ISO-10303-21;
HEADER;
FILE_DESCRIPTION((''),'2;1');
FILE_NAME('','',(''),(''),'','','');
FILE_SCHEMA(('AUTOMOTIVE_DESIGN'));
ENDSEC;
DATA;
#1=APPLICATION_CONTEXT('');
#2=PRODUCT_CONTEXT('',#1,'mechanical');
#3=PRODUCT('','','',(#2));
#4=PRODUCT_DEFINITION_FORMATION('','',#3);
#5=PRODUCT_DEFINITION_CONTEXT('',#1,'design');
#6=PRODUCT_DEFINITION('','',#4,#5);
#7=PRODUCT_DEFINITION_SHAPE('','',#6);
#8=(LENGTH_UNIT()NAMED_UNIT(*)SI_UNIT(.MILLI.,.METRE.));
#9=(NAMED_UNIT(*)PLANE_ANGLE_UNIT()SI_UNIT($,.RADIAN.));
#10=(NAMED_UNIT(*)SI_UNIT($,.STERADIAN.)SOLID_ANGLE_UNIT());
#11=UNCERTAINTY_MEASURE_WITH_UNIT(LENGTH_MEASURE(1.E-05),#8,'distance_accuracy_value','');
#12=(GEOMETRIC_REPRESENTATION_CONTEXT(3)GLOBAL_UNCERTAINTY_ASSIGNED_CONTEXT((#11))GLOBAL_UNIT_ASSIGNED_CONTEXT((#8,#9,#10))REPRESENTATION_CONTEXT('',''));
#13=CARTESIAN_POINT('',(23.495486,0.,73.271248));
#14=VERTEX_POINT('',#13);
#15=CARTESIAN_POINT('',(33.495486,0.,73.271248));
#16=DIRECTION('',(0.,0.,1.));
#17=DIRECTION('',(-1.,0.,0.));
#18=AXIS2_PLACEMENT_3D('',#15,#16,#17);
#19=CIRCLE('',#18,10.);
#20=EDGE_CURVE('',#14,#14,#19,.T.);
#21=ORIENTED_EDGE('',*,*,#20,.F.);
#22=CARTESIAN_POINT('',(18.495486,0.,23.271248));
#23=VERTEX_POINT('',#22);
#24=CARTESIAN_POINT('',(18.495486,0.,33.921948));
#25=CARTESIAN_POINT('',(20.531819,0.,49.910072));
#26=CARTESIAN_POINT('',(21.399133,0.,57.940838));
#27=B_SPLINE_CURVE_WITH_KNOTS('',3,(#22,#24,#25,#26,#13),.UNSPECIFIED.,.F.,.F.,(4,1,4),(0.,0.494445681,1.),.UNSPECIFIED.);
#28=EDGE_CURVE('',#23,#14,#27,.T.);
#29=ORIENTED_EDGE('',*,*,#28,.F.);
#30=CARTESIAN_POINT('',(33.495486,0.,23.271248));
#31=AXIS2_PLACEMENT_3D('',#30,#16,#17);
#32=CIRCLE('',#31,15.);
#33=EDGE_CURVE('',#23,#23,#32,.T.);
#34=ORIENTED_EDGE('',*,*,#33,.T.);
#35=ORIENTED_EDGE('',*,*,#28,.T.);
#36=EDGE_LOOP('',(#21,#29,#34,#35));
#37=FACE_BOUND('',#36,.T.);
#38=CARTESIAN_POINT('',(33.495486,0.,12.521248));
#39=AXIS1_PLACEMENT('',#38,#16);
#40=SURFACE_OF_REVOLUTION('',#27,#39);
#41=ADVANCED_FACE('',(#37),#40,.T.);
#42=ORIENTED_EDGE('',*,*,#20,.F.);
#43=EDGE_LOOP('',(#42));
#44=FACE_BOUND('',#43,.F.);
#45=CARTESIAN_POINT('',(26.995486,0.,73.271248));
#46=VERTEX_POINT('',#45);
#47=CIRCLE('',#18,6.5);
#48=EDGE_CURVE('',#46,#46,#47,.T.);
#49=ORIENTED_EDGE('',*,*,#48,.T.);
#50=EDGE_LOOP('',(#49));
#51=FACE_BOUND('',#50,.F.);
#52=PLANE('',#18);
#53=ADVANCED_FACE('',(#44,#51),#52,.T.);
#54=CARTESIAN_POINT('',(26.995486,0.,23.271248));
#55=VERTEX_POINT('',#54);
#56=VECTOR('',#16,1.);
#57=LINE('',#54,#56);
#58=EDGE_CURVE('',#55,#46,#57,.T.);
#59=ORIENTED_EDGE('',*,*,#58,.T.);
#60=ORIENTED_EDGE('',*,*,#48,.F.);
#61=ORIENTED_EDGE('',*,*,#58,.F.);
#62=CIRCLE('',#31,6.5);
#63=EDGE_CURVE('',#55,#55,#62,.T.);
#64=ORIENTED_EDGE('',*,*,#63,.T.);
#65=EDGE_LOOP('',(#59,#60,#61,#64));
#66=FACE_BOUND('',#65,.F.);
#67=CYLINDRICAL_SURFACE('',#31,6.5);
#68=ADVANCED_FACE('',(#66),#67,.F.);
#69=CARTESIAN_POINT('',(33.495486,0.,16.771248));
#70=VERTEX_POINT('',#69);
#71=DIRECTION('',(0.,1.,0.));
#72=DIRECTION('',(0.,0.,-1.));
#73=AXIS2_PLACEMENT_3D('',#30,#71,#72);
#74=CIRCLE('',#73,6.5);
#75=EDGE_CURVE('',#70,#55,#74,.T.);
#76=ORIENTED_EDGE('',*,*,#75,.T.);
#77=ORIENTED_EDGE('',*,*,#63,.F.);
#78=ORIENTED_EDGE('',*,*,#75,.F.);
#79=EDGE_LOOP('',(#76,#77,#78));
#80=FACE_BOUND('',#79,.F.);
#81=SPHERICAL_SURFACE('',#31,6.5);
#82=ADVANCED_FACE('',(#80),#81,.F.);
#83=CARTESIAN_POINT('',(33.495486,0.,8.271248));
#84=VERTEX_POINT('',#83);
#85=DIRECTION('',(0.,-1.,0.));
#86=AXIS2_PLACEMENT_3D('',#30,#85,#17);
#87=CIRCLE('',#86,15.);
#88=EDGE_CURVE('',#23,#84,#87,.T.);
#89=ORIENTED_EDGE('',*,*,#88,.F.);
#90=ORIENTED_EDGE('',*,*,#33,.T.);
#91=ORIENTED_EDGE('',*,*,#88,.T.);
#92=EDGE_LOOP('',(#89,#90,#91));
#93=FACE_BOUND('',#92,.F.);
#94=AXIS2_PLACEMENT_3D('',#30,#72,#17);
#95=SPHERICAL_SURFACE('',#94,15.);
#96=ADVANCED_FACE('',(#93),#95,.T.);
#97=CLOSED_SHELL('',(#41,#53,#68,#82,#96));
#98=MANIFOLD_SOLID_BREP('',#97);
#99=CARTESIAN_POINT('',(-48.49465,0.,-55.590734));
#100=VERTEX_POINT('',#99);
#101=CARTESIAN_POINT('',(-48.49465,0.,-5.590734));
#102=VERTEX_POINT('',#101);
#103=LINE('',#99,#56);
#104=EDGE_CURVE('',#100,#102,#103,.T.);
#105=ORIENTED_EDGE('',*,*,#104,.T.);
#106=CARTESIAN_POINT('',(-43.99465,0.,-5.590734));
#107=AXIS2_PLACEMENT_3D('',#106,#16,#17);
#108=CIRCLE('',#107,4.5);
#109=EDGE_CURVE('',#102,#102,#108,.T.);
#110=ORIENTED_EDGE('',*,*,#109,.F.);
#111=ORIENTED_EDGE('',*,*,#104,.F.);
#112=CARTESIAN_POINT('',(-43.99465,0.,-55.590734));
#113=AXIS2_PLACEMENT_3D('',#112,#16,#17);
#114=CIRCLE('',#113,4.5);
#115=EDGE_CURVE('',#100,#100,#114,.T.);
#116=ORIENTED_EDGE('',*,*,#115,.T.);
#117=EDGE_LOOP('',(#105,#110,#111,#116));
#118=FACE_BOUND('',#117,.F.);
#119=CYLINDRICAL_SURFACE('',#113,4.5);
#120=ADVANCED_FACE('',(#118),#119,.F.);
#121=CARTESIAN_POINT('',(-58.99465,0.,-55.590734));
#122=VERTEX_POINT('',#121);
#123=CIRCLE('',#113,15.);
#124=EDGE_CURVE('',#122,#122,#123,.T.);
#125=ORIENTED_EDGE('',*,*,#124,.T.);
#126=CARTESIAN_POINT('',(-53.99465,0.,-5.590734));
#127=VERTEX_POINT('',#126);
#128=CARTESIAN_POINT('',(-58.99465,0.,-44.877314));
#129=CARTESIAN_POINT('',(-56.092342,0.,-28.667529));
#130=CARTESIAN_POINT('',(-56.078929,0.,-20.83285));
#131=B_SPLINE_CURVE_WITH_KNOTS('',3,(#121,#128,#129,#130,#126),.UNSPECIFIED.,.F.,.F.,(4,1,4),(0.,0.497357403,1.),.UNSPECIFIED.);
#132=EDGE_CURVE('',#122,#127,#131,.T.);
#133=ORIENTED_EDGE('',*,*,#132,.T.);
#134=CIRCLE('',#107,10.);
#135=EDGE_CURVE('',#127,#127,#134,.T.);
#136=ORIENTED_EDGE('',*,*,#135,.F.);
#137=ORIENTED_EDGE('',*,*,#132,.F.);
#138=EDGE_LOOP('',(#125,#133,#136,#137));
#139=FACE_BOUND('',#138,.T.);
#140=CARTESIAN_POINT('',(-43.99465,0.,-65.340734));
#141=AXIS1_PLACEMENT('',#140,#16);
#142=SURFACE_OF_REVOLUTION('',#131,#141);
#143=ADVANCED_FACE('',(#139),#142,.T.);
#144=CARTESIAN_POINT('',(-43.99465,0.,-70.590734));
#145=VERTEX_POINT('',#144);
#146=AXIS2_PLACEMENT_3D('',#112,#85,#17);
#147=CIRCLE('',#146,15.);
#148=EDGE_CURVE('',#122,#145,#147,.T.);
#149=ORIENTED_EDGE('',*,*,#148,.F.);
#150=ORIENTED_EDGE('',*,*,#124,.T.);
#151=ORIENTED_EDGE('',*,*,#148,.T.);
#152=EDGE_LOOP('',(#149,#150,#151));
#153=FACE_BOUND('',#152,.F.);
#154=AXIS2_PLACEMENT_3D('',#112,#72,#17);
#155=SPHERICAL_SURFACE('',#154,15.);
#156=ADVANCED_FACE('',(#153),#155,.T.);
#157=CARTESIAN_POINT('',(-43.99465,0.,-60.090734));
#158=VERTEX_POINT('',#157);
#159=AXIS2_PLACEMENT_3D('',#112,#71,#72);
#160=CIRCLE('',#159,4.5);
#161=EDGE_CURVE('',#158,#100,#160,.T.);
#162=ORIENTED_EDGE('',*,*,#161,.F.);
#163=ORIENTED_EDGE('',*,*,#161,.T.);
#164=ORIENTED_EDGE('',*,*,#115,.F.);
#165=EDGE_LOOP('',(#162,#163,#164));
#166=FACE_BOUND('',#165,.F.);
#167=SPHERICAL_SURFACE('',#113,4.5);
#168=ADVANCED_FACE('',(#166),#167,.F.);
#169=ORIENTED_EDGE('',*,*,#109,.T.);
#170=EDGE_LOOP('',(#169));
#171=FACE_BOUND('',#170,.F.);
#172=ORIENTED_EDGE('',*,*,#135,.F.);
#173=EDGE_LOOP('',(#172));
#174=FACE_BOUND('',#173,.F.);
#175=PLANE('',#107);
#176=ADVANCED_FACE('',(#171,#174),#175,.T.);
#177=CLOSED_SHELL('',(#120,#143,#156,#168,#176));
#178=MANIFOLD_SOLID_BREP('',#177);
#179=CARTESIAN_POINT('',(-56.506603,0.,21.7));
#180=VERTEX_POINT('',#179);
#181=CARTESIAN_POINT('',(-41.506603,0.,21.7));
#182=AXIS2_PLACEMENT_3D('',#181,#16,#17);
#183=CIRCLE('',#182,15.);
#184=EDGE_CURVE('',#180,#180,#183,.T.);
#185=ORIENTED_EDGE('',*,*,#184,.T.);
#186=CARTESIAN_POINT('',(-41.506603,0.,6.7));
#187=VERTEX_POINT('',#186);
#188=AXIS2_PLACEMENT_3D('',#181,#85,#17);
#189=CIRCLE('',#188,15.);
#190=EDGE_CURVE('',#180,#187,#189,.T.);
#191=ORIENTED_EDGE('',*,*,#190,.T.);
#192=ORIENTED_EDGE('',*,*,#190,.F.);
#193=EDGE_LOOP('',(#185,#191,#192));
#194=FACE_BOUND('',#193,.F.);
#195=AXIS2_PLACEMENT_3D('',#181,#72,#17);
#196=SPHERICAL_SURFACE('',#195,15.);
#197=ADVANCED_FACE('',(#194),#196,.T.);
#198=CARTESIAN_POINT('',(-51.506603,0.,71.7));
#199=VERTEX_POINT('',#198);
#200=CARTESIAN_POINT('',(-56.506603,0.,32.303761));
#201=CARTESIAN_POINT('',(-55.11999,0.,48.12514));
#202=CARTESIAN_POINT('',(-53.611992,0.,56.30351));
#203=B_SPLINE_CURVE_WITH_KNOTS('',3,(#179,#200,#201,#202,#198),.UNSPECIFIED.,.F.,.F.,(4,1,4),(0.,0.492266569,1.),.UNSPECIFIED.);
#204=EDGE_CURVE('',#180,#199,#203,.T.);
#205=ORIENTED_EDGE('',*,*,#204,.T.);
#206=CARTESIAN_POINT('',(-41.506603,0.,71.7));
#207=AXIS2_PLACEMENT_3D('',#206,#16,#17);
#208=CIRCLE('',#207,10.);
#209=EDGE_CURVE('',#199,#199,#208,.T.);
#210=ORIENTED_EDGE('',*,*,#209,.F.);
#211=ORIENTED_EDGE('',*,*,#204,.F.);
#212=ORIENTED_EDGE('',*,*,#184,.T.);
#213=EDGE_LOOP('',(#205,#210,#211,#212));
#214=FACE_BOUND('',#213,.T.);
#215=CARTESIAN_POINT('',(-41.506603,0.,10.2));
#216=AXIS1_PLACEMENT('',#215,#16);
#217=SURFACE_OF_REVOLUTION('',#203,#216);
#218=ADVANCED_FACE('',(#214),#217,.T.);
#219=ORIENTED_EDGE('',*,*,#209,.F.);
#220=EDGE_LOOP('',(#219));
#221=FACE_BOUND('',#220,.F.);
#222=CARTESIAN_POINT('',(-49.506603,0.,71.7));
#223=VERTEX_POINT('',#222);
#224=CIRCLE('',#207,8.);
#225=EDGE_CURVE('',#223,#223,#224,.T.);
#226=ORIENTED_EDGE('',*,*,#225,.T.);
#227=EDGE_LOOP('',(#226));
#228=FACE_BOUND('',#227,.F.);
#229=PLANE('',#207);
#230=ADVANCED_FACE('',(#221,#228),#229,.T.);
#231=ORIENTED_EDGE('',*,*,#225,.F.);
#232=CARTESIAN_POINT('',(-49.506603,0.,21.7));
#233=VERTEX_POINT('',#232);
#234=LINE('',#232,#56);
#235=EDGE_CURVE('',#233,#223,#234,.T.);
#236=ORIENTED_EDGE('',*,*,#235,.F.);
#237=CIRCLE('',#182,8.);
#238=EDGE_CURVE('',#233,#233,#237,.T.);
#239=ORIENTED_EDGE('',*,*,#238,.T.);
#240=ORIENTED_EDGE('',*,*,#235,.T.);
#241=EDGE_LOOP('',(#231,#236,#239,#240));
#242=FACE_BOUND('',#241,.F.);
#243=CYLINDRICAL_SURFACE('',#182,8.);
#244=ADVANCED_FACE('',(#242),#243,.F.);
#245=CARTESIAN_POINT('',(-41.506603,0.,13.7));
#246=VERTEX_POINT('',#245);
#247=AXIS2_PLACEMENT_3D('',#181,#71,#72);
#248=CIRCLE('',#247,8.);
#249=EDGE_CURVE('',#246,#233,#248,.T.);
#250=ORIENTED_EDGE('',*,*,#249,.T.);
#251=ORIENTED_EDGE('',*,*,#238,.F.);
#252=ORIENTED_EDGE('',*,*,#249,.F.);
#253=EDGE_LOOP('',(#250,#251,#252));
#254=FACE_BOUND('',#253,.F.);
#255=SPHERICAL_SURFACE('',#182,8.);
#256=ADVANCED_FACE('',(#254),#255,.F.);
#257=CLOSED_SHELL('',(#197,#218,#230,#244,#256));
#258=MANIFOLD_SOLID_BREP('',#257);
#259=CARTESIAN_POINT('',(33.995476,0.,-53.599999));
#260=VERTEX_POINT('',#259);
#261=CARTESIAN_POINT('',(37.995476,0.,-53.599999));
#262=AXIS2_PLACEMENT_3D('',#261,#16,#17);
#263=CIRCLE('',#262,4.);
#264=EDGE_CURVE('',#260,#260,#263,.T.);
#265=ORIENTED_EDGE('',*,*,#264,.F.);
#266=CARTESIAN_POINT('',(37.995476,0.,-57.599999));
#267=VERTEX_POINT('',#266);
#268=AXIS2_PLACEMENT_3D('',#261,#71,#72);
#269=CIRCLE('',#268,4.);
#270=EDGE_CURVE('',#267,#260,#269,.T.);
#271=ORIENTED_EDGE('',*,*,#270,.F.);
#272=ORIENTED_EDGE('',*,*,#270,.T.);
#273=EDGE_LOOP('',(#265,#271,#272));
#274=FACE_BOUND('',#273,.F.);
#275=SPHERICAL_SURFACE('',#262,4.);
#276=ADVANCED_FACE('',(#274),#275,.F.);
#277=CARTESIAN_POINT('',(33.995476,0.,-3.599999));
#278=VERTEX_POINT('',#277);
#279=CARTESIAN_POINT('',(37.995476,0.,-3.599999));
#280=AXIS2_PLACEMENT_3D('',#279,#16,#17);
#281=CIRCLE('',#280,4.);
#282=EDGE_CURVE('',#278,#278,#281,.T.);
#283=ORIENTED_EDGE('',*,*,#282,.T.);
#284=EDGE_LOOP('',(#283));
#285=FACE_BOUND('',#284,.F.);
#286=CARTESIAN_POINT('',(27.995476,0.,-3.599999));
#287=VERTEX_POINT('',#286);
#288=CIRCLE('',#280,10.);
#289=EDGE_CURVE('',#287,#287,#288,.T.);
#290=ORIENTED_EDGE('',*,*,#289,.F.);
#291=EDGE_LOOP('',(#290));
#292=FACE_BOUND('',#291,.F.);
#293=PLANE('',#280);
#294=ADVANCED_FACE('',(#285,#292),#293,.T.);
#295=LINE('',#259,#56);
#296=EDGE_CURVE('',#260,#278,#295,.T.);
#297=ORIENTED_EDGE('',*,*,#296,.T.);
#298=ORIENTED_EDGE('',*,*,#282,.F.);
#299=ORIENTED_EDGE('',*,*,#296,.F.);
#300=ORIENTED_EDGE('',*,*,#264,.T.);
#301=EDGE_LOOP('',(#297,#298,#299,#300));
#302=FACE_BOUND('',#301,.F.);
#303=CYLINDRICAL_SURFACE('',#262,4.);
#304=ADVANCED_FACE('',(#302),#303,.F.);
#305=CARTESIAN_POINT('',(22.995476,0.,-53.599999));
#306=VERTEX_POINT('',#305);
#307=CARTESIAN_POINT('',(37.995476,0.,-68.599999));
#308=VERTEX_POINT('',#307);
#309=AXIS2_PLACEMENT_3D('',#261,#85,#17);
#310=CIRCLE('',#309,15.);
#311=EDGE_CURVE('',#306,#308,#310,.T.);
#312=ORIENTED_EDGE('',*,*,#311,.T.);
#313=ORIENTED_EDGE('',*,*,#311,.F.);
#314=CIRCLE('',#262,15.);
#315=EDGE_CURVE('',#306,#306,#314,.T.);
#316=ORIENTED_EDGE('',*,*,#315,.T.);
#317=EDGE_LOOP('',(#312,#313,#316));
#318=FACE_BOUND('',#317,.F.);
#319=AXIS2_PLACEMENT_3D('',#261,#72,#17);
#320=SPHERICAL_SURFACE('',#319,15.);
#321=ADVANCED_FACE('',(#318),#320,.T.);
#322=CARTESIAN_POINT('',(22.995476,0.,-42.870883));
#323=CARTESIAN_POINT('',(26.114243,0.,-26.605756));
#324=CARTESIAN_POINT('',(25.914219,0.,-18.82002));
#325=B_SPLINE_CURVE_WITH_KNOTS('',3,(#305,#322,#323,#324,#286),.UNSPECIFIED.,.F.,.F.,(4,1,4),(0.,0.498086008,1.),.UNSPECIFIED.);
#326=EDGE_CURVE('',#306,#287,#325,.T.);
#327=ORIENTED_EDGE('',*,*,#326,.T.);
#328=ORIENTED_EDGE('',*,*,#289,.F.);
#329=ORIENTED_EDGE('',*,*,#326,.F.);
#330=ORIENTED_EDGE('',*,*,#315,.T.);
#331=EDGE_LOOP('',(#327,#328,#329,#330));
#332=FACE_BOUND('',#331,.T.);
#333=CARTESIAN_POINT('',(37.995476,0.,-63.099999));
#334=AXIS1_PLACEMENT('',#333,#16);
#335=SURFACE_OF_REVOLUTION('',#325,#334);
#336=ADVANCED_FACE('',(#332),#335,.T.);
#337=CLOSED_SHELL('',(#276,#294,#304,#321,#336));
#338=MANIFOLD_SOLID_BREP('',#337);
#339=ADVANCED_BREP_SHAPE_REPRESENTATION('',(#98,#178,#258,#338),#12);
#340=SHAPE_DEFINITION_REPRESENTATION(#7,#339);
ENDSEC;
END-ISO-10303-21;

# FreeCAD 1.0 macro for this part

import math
import FreeCAD as App
import Part
import Sketcher
from FreeCAD import Vector

doc = App.newDocument("Part")
body = doc.addObject("PartDesign::Body", "Body")

sketch1 = body.newObject("Sketcher::SketchObject", "Sketch")
sketch1.AttachmentSupport = (doc.getObject("XZ_Plane"), [""])
sketch1.MapMode = "FlatFace"
sketch1.addGeometry([
    Part.ArcOfCircle(Part.Circle(Vector(-41.506603, 21.7, 0), Vector(0, 0, 1), 8), math.radians(180), math.radians(270)),
    Part.LineSegment(Vector(-49.506603, 21.7, 0), Vector(-49.506603, 71.7, 0)),
    Part.LineSegment(Vector(-49.506603, 71.7, 0), Vector(-51.506603, 71.7, 0)),
    Part.BSplineCurve([Vector(-56.506603, 21.7, 0), Vector(-56.506603, 32.303761, 0), Vector(-55.11999, 48.12514, 0), Vector(-53.611992, 56.30351, 0), Vector(-51.506603, 71.7, 0)], [4, 1, 4], [0, 0.492266569, 1], False, 3, [1, 1, 1, 1, 1], False),
    Part.ArcOfCircle(Part.Circle(Vector(-41.506603, 21.7, 0), Vector(0, 0, 1), 15), math.radians(180), math.radians(270)),
    Part.LineSegment(Vector(-41.506603, 6.7, 0), Vector(-41.506603, 13.7, 0)),
], False)
sketch1.addGeometry(Part.LineSegment(Vector(-41.506603, 6.7, 0), Vector(-41.506603, 71.7, 0)), True)
sketch1.addConstraint([
    Sketcher.Constraint("Block", 3),
    Sketcher.Constraint("Tangent", 0, 1, 1, 1),
    Sketcher.Constraint("Coincident", 1, 2, 2, 1),
    Sketcher.Constraint("Coincident", 2, 2, 3, 2),
    Sketcher.Constraint("Coincident", 3, 1, 4, 1),
    Sketcher.Constraint("Coincident", 4, 2, 5, 1),
    Sketcher.Constraint("Coincident", 5, 2, 0, 2),
    Sketcher.Constraint("Vertical", 1),
    Sketcher.Constraint("Horizontal", 2),
    Sketcher.Constraint("Vertical", 5),
    Sketcher.Constraint("Vertical", 6),
    Sketcher.Constraint("Coincident", 4, 3, 0, 3),
    Sketcher.Constraint("Coincident", 6, 1, 4, 2),
    Sketcher.Constraint("Horizontal", 2, 2, 6, 2),
    Sketcher.Constraint("Vertical", 0, 3, 4, 2),
    Sketcher.Constraint("Radius", 0, 8.0),
    Sketcher.Constraint("Radius", 4, 15.0),
    Sketcher.Constraint("DistanceY", 1, 1, 1, 2, 50.0),
])
revolution = body.newObject("PartDesign::Revolution", "Revolution")
revolution.Profile = sketch1
revolution.ReferenceAxis = (sketch1, ["Axis0"])
revolution.Angle = 360
body2 = doc.addObject("PartDesign::Body", "Body001")

sketch2 = body2.newObject("Sketcher::SketchObject", "Sketch001")
sketch2.AttachmentSupport = (doc.getObject("XZ_Plane001"), [""])
sketch2.MapMode = "FlatFace"
sketch2.addGeometry([
    Part.ArcOfCircle(Part.Circle(Vector(33.495486, 23.271248, 0), Vector(0, 0, 1), 6.5), math.radians(180), math.radians(270)),
    Part.LineSegment(Vector(26.995486, 23.271248, 0), Vector(26.995486, 73.271248, 0)),
    Part.LineSegment(Vector(26.995486, 73.271248, 0), Vector(23.495486, 73.271248, 0)),
    Part.BSplineCurve([Vector(18.495486, 23.271248, 0), Vector(18.495486, 33.921948, 0), Vector(20.531819, 49.910072, 0), Vector(21.399133, 57.940838, 0), Vector(23.495486, 73.271248, 0)], [4, 1, 4], [0, 0.494445681, 1], False, 3, [1, 1, 1, 1, 1], False),
    Part.ArcOfCircle(Part.Circle(Vector(33.495486, 23.271248, 0), Vector(0, 0, 1), 15), math.radians(180), math.radians(270)),
    Part.LineSegment(Vector(33.495486, 8.271248, 0), Vector(33.495486, 16.771248, 0)),
], False)
sketch2.addGeometry(Part.LineSegment(Vector(33.495486, 8.271248, 0), Vector(33.495486, 73.271248, 0)), True)
sketch2.addConstraint([
    Sketcher.Constraint("Block", 3),
    Sketcher.Constraint("Tangent", 0, 1, 1, 1),
    Sketcher.Constraint("Coincident", 1, 2, 2, 1),
    Sketcher.Constraint("Coincident", 2, 2, 3, 2),
    Sketcher.Constraint("Coincident", 3, 1, 4, 1),
    Sketcher.Constraint("Coincident", 4, 2, 5, 1),
    Sketcher.Constraint("Coincident", 5, 2, 0, 2),
    Sketcher.Constraint("Vertical", 1),
    Sketcher.Constraint("Horizontal", 2),
    Sketcher.Constraint("Vertical", 5),
    Sketcher.Constraint("Vertical", 6),
    Sketcher.Constraint("Coincident", 4, 3, 0, 3),
    Sketcher.Constraint("Coincident", 6, 1, 4, 2),
    Sketcher.Constraint("Horizontal", 2, 2, 6, 2),
    Sketcher.Constraint("Vertical", 0, 3, 4, 2),
    Sketcher.Constraint("Radius", 4, 15.0),
    Sketcher.Constraint("Radius", 0, 6.5),
    Sketcher.Constraint("DistanceY", 1, 1, 1, 2, 50.0),
])
revolution2 = body2.newObject("PartDesign::Revolution", "Revolution001")
revolution2.Profile = sketch2
revolution2.ReferenceAxis = (sketch2, ["Axis0"])
revolution2.Angle = 360
body3 = doc.addObject("PartDesign::Body", "Body002")

sketch3 = body3.newObject("Sketcher::SketchObject", "Sketch002")
sketch3.AttachmentSupport = (doc.getObject("XZ_Plane002"), [""])
sketch3.MapMode = "FlatFace"
sketch3.addGeometry([
    Part.ArcOfCircle(Part.Circle(Vector(-43.99465, -55.590734, 0), Vector(0, 0, 1), 4.5), math.radians(180), math.radians(270)),
    Part.LineSegment(Vector(-48.49465, -55.590734, 0), Vector(-48.49465, -5.590734, 0)),
    Part.LineSegment(Vector(-48.49465, -5.590734, 0), Vector(-53.99465, -5.590734, 0)),
    Part.BSplineCurve([Vector(-58.99465, -55.590734, 0), Vector(-58.99465, -44.877314, 0), Vector(-56.092342, -28.667529, 0), Vector(-56.078929, -20.83285, 0), Vector(-53.99465, -5.590734, 0)], [4, 1, 4], [0, 0.497357403, 1], False, 3, [1, 1, 1, 1, 1], False),
    Part.ArcOfCircle(Part.Circle(Vector(-43.99465, -55.590734, 0), Vector(0, 0, 1), 15), math.radians(180), math.radians(270)),
    Part.LineSegment(Vector(-43.99465, -70.590734, 0), Vector(-43.99465, -60.090734, 0)),
], False)
sketch3.addGeometry(Part.LineSegment(Vector(-43.99465, -70.590734, 0), Vector(-43.99465, -5.590734, 0)), True)
sketch3.addConstraint([
    Sketcher.Constraint("Block", 3),
    Sketcher.Constraint("Tangent", 0, 1, 1, 1),
    Sketcher.Constraint("Coincident", 1, 2, 2, 1),
    Sketcher.Constraint("Coincident", 2, 2, 3, 2),
    Sketcher.Constraint("Coincident", 3, 1, 4, 1),
    Sketcher.Constraint("Coincident", 4, 2, 5, 1),
    Sketcher.Constraint("Coincident", 5, 2, 0, 2),
    Sketcher.Constraint("Vertical", 1),
    Sketcher.Constraint("Horizontal", 2),
    Sketcher.Constraint("Vertical", 5),
    Sketcher.Constraint("Vertical", 6),
    Sketcher.Constraint("Coincident", 4, 3, 0, 3),
    Sketcher.Constraint("Coincident", 6, 1, 4, 2),
    Sketcher.Constraint("Horizontal", 2, 2, 6, 2),
    Sketcher.Constraint("Vertical", 0, 3, 4, 2),
    Sketcher.Constraint("Radius", 4, 15.0),
    Sketcher.Constraint("Radius", 0, 4.5),
    Sketcher.Constraint("DistanceY", 1, 1, 1, 2, 50.0),
])
revolution3 = body3.newObject("PartDesign::Revolution", "Revolution002")
revolution3.Profile = sketch3
revolution3.ReferenceAxis = (sketch3, ["Axis0"])
revolution3.Angle = 360
body4 = doc.addObject("PartDesign::Body", "Body003")

sketch4 = body4.newObject("Sketcher::SketchObject", "Sketch003")
sketch4.AttachmentSupport = (doc.getObject("XZ_Plane003"), [""])
sketch4.MapMode = "FlatFace"
sketch4.addGeometry([
    Part.ArcOfCircle(Part.Circle(Vector(37.995476, -53.599999, 0), Vector(0, 0, 1), 4), math.radians(180), math.radians(270)),
    Part.LineSegment(Vector(33.995476, -53.599999, 0), Vector(33.995476, -3.599999, 0)),
    Part.LineSegment(Vector(33.995476, -3.599999, 0), Vector(27.995476, -3.599999, 0)),
    Part.BSplineCurve([Vector(22.995476, -53.599999, 0), Vector(22.995476, -42.870883, 0), Vector(26.114243, -26.605756, 0), Vector(25.914219, -18.82002, 0), Vector(27.995476, -3.599999, 0)], [4, 1, 4], [0, 0.498086008, 1], False, 3, [1, 1, 1, 1, 1], False),
    Part.ArcOfCircle(Part.Circle(Vector(37.995476, -53.599999, 0), Vector(0, 0, 1), 15), math.radians(180), math.radians(270)),
    Part.LineSegment(Vector(37.995476, -68.599999, 0), Vector(37.995476, -57.599999, 0)),
], False)
sketch4.addGeometry(Part.LineSegment(Vector(37.995476, -68.599999, 0), Vector(37.995476, -3.599999, 0)), True)
sketch4.addConstraint([
    Sketcher.Constraint("Block", 3),
    Sketcher.Constraint("Tangent", 0, 1, 1, 1),
    Sketcher.Constraint("Coincident", 1, 2, 2, 1),
    Sketcher.Constraint("Coincident", 2, 2, 3, 2),
    Sketcher.Constraint("Coincident", 3, 1, 4, 1),
    Sketcher.Constraint("Coincident", 4, 2, 5, 1),
    Sketcher.Constraint("Coincident", 5, 2, 0, 2),
    Sketcher.Constraint("Vertical", 1),
    Sketcher.Constraint("Horizontal", 2),
    Sketcher.Constraint("Vertical", 5),
    Sketcher.Constraint("Vertical", 6),
    Sketcher.Constraint("Coincident", 4, 3, 0, 3),
    Sketcher.Constraint("Coincident", 6, 1, 4, 2),
    Sketcher.Constraint("Horizontal", 2, 2, 6, 2),
    Sketcher.Constraint("Vertical", 0, 3, 4, 2),
    Sketcher.Constraint("Radius", 0, 4.0),
    Sketcher.Constraint("Radius", 4, 15.0),
    Sketcher.Constraint("DistanceY", 1, 1, 1, 2, 50.0),
])
revolution4 = body4.newObject("PartDesign::Revolution", "Revolution003")
revolution4.Profile = sketch4
revolution4.ReferenceAxis = (sketch4, ["Axis0"])
revolution4.Angle = 360

doc.recompute()
